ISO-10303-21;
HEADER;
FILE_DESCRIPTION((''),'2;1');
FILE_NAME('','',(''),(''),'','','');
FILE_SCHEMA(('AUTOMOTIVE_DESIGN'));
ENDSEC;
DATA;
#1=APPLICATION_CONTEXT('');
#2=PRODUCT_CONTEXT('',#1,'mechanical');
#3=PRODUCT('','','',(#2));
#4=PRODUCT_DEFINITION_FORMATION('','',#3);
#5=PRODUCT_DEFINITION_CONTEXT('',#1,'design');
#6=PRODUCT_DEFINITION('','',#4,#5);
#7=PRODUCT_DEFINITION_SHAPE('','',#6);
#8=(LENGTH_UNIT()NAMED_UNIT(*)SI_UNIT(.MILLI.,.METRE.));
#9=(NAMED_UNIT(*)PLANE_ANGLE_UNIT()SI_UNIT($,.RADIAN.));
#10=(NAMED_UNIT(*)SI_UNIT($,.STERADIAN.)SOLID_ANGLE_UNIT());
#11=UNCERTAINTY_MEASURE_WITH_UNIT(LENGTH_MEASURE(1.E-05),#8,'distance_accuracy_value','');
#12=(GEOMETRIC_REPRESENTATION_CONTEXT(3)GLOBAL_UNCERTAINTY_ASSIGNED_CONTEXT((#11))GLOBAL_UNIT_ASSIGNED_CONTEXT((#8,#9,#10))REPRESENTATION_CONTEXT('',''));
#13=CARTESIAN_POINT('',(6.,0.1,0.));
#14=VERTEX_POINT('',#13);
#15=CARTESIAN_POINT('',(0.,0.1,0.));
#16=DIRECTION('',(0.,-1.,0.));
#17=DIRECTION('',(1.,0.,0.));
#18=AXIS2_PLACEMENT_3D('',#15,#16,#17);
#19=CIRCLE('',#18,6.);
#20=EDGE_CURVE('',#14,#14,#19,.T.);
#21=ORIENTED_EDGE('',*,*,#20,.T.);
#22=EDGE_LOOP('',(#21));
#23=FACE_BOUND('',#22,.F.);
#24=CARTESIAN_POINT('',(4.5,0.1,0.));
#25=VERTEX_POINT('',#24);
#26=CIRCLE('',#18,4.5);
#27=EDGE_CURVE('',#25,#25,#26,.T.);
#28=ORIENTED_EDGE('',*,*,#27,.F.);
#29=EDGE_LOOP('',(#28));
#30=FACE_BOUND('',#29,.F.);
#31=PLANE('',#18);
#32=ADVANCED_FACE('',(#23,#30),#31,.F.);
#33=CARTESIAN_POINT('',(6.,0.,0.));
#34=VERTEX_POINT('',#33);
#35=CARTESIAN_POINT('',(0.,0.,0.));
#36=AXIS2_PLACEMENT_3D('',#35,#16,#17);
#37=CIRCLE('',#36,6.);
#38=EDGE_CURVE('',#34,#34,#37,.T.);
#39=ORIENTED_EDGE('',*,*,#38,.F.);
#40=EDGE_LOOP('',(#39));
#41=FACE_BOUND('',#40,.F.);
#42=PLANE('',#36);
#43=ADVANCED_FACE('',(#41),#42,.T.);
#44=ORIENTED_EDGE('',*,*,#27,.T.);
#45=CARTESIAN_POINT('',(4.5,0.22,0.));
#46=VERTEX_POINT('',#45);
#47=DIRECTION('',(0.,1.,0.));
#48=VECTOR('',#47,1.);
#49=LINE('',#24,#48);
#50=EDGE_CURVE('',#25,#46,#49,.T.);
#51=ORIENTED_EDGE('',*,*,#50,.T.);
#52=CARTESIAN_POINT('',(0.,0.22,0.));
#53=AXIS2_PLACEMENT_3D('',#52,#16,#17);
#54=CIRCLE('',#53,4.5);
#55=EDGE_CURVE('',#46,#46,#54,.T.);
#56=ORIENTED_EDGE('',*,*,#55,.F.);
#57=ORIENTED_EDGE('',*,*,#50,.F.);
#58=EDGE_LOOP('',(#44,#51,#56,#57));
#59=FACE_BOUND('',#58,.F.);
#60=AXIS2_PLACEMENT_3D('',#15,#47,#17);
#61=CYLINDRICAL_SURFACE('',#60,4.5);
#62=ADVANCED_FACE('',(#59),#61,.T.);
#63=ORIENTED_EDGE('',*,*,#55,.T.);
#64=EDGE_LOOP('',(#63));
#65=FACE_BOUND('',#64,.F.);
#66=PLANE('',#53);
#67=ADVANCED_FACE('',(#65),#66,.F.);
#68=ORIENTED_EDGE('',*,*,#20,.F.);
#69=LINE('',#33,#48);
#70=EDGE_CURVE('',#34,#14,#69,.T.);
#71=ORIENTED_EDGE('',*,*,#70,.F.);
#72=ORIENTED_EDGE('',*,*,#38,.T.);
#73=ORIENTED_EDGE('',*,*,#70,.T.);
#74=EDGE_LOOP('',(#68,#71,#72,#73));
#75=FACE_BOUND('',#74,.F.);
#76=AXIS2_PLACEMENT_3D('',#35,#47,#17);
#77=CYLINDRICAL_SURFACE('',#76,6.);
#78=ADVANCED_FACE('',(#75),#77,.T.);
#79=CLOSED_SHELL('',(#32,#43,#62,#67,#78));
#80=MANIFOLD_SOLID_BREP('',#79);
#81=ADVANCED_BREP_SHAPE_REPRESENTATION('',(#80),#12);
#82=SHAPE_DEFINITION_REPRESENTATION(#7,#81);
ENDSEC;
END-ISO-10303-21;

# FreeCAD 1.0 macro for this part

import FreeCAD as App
import Part
import Sketcher

V = App.Vector


def add_polygon(sketch, points):
    """Adds a closed chain of lines whose ends are joined by coincident constraints."""
    first, n = sketch.GeometryCount, len(points)
    for a, b in zip(points, points[1:] + points[:1]):
        sketch.addGeometry(Part.LineSegment(App.Vector(*a, 0), App.Vector(*b, 0)), False)
    for i in range(n):
        sketch.addConstraint(Sketcher.Constraint("Coincident", first + i, 2, first + (i + 1) % n, 1))

doc = App.newDocument("Part")
body = doc.addObject("PartDesign::Body", "Body")

# Sketch on XY plane
sketch1 = body.newObject("Sketcher::SketchObject", "Sketch")
sketch1.AttachmentSupport = (doc.getObject("XY_Plane"), [""])
sketch1.MapMode = "FlatFace"
add_polygon(sketch1, [(0, 0), (6, 0), (6, 0.1), (4.5, 0.1), (4.5, 0.22), (0, 0.22)])  # lines 0-5
sketch1.addConstraint(Sketcher.Constraint("Horizontal", 0))
sketch1.addConstraint(Sketcher.Constraint("Vertical", 1))
sketch1.addConstraint(Sketcher.Constraint("Horizontal", 2))
sketch1.addConstraint(Sketcher.Constraint("Vertical", 3))
sketch1.addConstraint(Sketcher.Constraint("Horizontal", 4))
sketch1.addConstraint(Sketcher.Constraint("Vertical", 5))
sketch1.addConstraint(Sketcher.Constraint("Coincident", 5, 2, -1, 1))
sketch1.addConstraint(Sketcher.Constraint("DistanceX", 0, 1, 0, 2, 6.0))
sketch1.addConstraint(Sketcher.Constraint("DistanceX", 4, 2, 4, 1, 4.5))
sketch1.addConstraint(Sketcher.Constraint("DistanceY", 1, 1, 1, 2, 0.1))
sketch1.addConstraint(Sketcher.Constraint("DistanceY", 3, 1, 3, 2, 0.12))
revolution = body.newObject("PartDesign::Revolution", "Revolution")
revolution.Profile = sketch1
revolution.ReferenceAxis = (sketch1, ["V_Axis"])
revolution.Angle = 360

doc.recompute()
